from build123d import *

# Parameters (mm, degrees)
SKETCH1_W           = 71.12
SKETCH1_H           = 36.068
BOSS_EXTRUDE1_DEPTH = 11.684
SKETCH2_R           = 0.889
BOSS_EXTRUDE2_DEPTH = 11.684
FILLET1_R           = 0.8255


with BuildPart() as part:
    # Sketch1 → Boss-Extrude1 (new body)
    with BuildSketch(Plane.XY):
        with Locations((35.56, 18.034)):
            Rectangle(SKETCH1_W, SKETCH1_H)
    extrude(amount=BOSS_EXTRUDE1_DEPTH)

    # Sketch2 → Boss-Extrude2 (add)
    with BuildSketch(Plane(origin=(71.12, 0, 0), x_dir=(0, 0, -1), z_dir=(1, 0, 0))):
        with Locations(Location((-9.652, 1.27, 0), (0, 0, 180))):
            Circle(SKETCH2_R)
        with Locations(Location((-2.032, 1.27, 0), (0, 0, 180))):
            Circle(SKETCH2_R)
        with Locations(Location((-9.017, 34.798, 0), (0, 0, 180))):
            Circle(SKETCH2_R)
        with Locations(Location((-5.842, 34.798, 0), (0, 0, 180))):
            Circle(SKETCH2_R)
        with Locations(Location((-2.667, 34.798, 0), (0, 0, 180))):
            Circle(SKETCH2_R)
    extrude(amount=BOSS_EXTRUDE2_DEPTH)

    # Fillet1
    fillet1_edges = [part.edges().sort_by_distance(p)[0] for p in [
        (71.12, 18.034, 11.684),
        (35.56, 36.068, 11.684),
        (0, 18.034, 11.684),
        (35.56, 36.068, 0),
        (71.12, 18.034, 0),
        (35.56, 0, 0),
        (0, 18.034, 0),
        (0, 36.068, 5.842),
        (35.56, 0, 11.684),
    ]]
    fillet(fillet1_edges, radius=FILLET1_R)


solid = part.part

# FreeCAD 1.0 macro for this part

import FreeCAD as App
import Part
import Sketcher

V = App.Vector
Q = App.Units.Quantity


def edges_at(feature, points):
    """Names of the edges that pass closest to the given points."""
    edges = feature.Shape.Edges
    near = lambda p: min(range(len(edges)), key=lambda i: edges[i].distToShape(Part.Vertex(*p))[0])
    return sorted({f"Edge{near(p) + 1}" for p in points})

doc = App.newDocument("Part")
body = doc.addObject("PartDesign::Body", "Body")

sketch1 = body.newObject("Sketcher::SketchObject", "Sketch")
sketch1.AttachmentSupport = (doc.getObject("XY_Plane"), [""])
sketch1.MapMode = "FlatFace"
sketch1.addGeometry(Part.LineSegment(V(0, 36, 0), V(0, 0, 0)), False)
sketch1.addGeometry(Part.LineSegment(V(0, 0, 0), V(71, 0, 0)), False)
sketch1.addGeometry(Part.LineSegment(V(71, 0, 0), V(71, 36, 0)), False)
sketch1.addGeometry(Part.LineSegment(V(71, 36, 0), V(0, 36, 0)), False)
sketch1.addConstraint(Sketcher.Constraint("Coincident", 0, 2, 1, 1))
sketch1.addConstraint(Sketcher.Constraint("Coincident", 1, 2, 2, 1))
sketch1.addConstraint(Sketcher.Constraint("Coincident", 2, 2, 3, 1))
sketch1.addConstraint(Sketcher.Constraint("Coincident", 3, 2, 0, 1))
sketch1.addConstraint(Sketcher.Constraint("Vertical", 0))
sketch1.addConstraint(Sketcher.Constraint("Horizontal", 1))
sketch1.addConstraint(Sketcher.Constraint("Vertical", 2))
sketch1.addConstraint(Sketcher.Constraint("Horizontal", 3))
sketch1.addConstraint(Sketcher.Constraint("Coincident", 0, 2, -1, 1))
sketch1.addConstraint(Sketcher.Constraint("DistanceX", 1, 1, 1, 2, Q("2.8 in")))
sketch1.addConstraint(Sketcher.Constraint("DistanceY", 0, 2, 0, 1, Q("1.42 in")))
pad1 = body.newObject("PartDesign::Pad", "Pad")
pad1.Profile = sketch1
pad1.Length = Q("0.46 in")

sketch2 = body.newObject("Sketcher::SketchObject", "Sketch001")
sketch2.AttachmentSupport = (doc.getObject("YZ_Plane"), [""])
sketch2.MapMode = "FlatFace"
sketch2.AttachmentOffset = App.Placement(V(0, 0, 2.8 * 25.4), App.Rotation())
sketch2.addGeometry(Part.Circle(V(1.3, 9.7, 0), V(0, 0, 1), 0.9), False)
sketch2.addGeometry(Part.Circle(V(1.3, 2, 0), V(0, 0, 1), 0.9), False)
sketch2.addGeometry(Part.Circle(V(34.8, 9, 0), V(0, 0, 1), 0.9), False)
sketch2.addGeometry(Part.Circle(V(34.8, 5.8, 0), V(0, 0, 1), 0.9), False)
sketch2.addGeometry(Part.Circle(V(34.8, 2.7, 0), V(0, 0, 1), 0.9), False)
sketch2.addConstraint(Sketcher.Constraint("Equal", 0, 1))
sketch2.addConstraint(Sketcher.Constraint("Equal", 1, 2))
sketch2.addConstraint(Sketcher.Constraint("Equal", 2, 3))
sketch2.addConstraint(Sketcher.Constraint("Equal", 3, 4))
sketch2.addConstraint(Sketcher.Constraint("Vertical", 0, 3, 1, 3))
sketch2.addConstraint(Sketcher.Constraint("Vertical", 2, 3, 3, 3))
sketch2.addConstraint(Sketcher.Constraint("Vertical", 3, 3, 4, 3))
sketch2.addConstraint(Sketcher.Constraint("Diameter", 0, Q("0.07 in")))
sketch2.addConstraint(Sketcher.Constraint("DistanceY", 1, 3, 0, 3, Q("0.3 in")))
sketch2.addConstraint(Sketcher.Constraint("DistanceX", -1, 1, 0, 3, Q("0.05 in")))
sketch2.addConstraint(Sketcher.Constraint("DistanceY", -1, 1, 0, 3, Q("0.38 in")))
sketch2.addConstraint(Sketcher.Constraint("DistanceX", -1, 1, 2, 3, Q("1.37 in")))
sketch2.addConstraint(Sketcher.Constraint("DistanceY", -1, 1, 3, 3, Q("0.23 in")))
sketch2.addConstraint(Sketcher.Constraint("DistanceY", 4, 3, 2, 3, Q("0.25 in")))
sketch2.addConstraint(Sketcher.Constraint("DistanceY", -1, 1, 2, 3, Q("0.355 in")))
pad2 = body.newObject("PartDesign::Pad", "Pad001")
pad2.Profile = sketch2
pad2.Length = Q("0.46 in")
doc.recompute()

fillet = body.newObject("PartDesign::Fillet", "Fillet")
fillet.Base = (pad2, edges_at(pad2, [
    (71.12, 18.034, 11.684),
    (35.56, 36.068, 11.684),
    (0, 18.034, 11.684),
    (35.56, 36.068, 0),
    (71.12, 18.034, 0),
    (35.56, 0, 0),
    (0, 18.034, 0),
    (0, 36.068, 5.842),
    (35.56, 0, 11.684),
]))
fillet.Radius = Q("0.0325 in")

doc.recompute()
